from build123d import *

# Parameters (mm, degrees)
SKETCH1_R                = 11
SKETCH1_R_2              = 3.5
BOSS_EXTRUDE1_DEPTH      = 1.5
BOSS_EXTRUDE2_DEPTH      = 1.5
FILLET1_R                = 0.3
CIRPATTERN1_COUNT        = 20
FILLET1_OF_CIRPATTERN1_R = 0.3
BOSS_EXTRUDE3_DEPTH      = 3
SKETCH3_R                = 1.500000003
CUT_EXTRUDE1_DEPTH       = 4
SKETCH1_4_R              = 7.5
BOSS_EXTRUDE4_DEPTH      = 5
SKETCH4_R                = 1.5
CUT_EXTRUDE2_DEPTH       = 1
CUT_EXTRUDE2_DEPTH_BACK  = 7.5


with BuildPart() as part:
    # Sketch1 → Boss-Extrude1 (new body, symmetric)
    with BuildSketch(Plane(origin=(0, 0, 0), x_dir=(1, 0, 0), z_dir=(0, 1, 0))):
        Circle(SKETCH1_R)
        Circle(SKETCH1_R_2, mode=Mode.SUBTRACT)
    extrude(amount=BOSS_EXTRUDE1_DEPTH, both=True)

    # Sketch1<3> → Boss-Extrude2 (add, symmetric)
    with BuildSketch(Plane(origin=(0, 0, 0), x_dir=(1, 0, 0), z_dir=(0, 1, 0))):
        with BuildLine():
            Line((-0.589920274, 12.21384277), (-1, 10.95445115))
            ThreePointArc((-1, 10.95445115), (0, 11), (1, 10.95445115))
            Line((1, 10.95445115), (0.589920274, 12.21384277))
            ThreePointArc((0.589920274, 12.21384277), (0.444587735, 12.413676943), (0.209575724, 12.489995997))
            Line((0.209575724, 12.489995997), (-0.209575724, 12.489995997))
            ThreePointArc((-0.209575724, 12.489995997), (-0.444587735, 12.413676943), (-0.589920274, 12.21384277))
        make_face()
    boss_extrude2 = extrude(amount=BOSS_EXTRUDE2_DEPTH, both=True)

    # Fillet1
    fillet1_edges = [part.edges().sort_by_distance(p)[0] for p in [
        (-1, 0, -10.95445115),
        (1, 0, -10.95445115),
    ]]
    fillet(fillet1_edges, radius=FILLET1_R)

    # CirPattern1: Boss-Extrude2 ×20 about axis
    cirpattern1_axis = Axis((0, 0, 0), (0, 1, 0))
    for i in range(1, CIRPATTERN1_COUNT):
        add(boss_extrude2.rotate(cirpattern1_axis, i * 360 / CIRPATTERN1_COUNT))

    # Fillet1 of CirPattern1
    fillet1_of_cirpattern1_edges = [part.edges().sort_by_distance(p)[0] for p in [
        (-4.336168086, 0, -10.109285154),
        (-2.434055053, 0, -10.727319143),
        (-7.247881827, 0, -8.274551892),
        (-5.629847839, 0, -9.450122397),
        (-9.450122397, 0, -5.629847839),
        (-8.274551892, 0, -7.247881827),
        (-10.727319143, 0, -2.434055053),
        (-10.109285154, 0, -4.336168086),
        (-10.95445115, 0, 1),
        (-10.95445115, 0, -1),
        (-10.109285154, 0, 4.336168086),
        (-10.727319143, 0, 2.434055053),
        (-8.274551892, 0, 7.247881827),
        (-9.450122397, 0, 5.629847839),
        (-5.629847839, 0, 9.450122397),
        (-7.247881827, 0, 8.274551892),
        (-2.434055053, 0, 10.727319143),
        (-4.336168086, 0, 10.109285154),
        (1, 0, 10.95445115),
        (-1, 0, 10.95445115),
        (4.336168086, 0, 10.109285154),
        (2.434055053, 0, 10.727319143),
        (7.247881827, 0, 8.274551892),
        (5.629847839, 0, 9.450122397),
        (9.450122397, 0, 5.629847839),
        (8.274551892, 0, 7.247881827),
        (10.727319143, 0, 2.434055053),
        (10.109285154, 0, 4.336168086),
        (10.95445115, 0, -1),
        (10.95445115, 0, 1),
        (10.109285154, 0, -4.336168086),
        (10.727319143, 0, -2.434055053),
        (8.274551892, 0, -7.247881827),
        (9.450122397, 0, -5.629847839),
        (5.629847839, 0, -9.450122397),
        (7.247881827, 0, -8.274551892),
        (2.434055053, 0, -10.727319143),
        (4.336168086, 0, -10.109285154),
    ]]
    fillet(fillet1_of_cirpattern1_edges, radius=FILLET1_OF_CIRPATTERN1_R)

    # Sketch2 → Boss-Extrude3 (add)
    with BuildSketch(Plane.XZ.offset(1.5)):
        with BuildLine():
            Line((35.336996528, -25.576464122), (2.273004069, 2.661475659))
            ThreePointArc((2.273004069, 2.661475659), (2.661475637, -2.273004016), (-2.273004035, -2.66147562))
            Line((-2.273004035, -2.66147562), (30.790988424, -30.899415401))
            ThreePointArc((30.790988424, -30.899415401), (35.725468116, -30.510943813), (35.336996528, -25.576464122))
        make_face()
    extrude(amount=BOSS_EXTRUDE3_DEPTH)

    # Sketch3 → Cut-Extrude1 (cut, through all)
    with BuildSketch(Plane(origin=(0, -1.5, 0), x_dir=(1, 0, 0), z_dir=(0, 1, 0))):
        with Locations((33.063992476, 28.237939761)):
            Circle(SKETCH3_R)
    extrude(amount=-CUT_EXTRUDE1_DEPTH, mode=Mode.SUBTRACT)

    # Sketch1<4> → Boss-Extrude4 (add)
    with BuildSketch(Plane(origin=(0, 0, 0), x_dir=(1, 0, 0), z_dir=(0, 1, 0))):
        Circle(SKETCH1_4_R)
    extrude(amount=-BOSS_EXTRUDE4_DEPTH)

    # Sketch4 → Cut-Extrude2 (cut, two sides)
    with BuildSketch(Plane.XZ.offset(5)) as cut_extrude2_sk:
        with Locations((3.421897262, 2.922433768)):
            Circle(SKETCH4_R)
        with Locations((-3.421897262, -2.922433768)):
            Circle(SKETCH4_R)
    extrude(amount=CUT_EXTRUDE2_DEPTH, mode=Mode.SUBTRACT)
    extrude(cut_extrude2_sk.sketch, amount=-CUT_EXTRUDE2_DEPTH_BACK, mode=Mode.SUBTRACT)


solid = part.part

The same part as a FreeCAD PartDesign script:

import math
import FreeCAD as App
import Part
import Sketcher

V = App.Vector
Q = App.Units.Quantity


def edges_at(feature, points):
    """Names of the edges that pass closest to the given points."""
    edges = feature.Shape.Edges
    near = lambda p: min(range(len(edges)), key=lambda i: edges[i].distToShape(Part.Vertex(*p))[0])
    return sorted({f"Edge{near(p) + 1}" for p in points})

doc = App.newDocument("Part")
body = doc.addObject("PartDesign::Body", "Body")

# Sketch on XZ plane
sketch1 = body.newObject("Sketcher::SketchObject", "Sketch")
sketch1.AttachmentSupport = (doc.getObject("XZ_Plane"), [""])
sketch1.MapMode = "FlatFace"
sketch1.addGeometry([
    Part.Circle(V(0, 0, 0), V(0, 0, 1), 11),
    Part.Circle(V(0, 0, 0), V(0, 0, 1), 3.5),
], False)
sketch1.addConstraint([
    Sketcher.Constraint("Coincident", 0, 3, -1, 1),
    Sketcher.Constraint("Coincident", 1, 3, -1, 1),
    Sketcher.Constraint("Diameter", 0, Q("22 mm")),
    Sketcher.Constraint("Diameter", 1, Q("7 mm")),
])
pad1 = body.newObject("PartDesign::Pad", "Pad")
pad1.Profile = sketch1
pad1.Length = 3
pad1.Midplane = True

# Sketch on XZ plane
sketch2 = body.newObject("Sketcher::SketchObject", "Sketch001")
sketch2.AttachmentSupport = (doc.getObject("XZ_Plane"), [""])
sketch2.MapMode = "FlatFace"
sketch2.addGeometry([
    Part.LineSegment(V(-0.59, -12.21, 0), V(-1, -10.95, 0)),  # 0
    Part.ArcOfCircle(Part.Circle(V(0, 0, 0), V(0, 0, 1), 11), math.radians(-95.22), math.radians(-84.78)),  # 1
    Part.LineSegment(V(1, -10.95, 0), V(0.59, -12.21, 0)),  # 2
    Part.ArcOfCircle(Part.Circle(V(0.21, -12.09, 0), V(0, 0, 1), 0.4), math.radians(-90), math.radians(-18)),  # 3
    Part.LineSegment(V(0.21, -12.49, 0), V(-0.21, -12.49, 0)),  # 4
    Part.ArcOfCircle(Part.Circle(V(-0.21, -12.09, 0), V(0, 0, 1), 0.4), math.radians(-162), math.radians(-90)),  # 5
], False)
sketch2.addConstraint([
    Sketcher.Constraint("Coincident", 0, 2, 1, 1),
    Sketcher.Constraint("Coincident", 1, 2, 2, 1),
    Sketcher.Constraint("Tangent", 2, 2, 3, 2),
    Sketcher.Constraint("Tangent", 3, 1, 4, 1),
    Sketcher.Constraint("Tangent", 4, 2, 5, 2),
    Sketcher.Constraint("Tangent", 5, 1, 0, 1),
    Sketcher.Constraint("Horizontal", 4),
    Sketcher.Constraint("Coincident", 1, 3, -1, 1),
    Sketcher.Constraint("Equal", 3, 5),
    Sketcher.Constraint("Symmetric", 2, 2, 5, 1, -2),
    Sketcher.Constraint("Radius", 1, Q("11 mm")),
    Sketcher.Constraint("Radius", 3, Q("0.4 mm")),
    Sketcher.Constraint("DistanceX", 0, 2, -1, 1, Q("1 mm")),
    Sketcher.Constraint("DistanceX", 4, 2, 4, 1, Q("0.419151 mm")),
    Sketcher.Constraint("DistanceX", -1, 1, 2, 2, Q("0.58992 mm")),
])
pad2 = body.newObject("PartDesign::Pad", "Pad001")
pad2.Profile = sketch2
pad2.Length = 3
pad2.Midplane = True
doc.recompute()

fillet = body.newObject("PartDesign::Fillet", "Fillet")
fillet.Base = (pad2, edges_at(pad2, [(-1, 0, -10.954), (1, 0, -10.954)]))
fillet.Radius = 0.3
doc.recompute()

polarpattern = body.newObject("PartDesign::PolarPattern", "PolarPattern")
polarpattern.Originals = [pad2]
polarpattern.Axis = (doc.getObject("Y_Axis"), [""])
polarpattern.Angle = 360
polarpattern.Occurrences = 20
body.Tip = polarpattern
doc.recompute()

fillet2 = body.newObject("PartDesign::Fillet", "Fillet001")
fillet2.Base = (polarpattern, edges_at(polarpattern, [
    (-4.336, 0, -10.109),
    (-2.434, 0, -10.727),
    (-7.248, 0, -8.275),
    (-5.63, 0, -9.45),
    (-9.45, 0, -5.63),
    (-8.275, 0, -7.248),
    (-10.727, 0, -2.434),
    (-10.109, 0, -4.336),
    (-10.954, 0, 1),
    (-10.954, 0, -1),
    (-10.109, 0, 4.336),
    (-10.727, 0, 2.434),
    (-8.275, 0, 7.248),
    (-9.45, 0, 5.63),
    (-5.63, 0, 9.45),
    (-7.248, 0, 8.275),
    (-2.434, 0, 10.727),
    (-4.336, 0, 10.109),
    (1, 0, 10.954),
    (-1, 0, 10.954),
    (4.336, 0, 10.109),
    (2.434, 0, 10.727),
    (7.248, 0, 8.275),
    (5.63, 0, 9.45),
    (9.45, 0, 5.63),
    (8.275, 0, 7.248),
    (10.727, 0, 2.434),
    (10.109, 0, 4.336),
    (10.954, 0, -1),
    (10.954, 0, 1),
    (10.109, 0, -4.336),
    (10.727, 0, -2.434),
    (8.275, 0, -7.248),
    (9.45, 0, -5.63),
    (5.63, 0, -9.45),
    (7.248, 0, -8.275),
    (2.434, 0, -10.727),
    (4.336, 0, -10.109),
]))
fillet2.Radius = 0.3

# Sketch on XZ plane
sketch3 = body.newObject("Sketcher::SketchObject", "Sketch002")
sketch3.AttachmentSupport = (doc.getObject("XZ_Plane"), [""])
sketch3.MapMode = "FlatFace"
sketch3.AttachmentOffset = App.Placement(V(0, 0, 1.5), App.Rotation())
sketch3.addGeometry([
    Part.LineSegment(V(35.3, -25.6, 0), V(2.3, 2.7, 0)),
    Part.ArcOfCircle(Part.Circle(V(0, 0, 0), V(0, 0, 1), 3.5), math.radians(-130), math.radians(50)),
    Part.LineSegment(V(-2.3, -2.7, 0), V(30.8, -30.9, 0)),
    Part.ArcOfCircle(Part.Circle(V(33.1, -28.2, 0), V(0, 0, 1), 3.5), math.radians(-130), math.radians(50)),
], False)
sketch3.addConstraint([
    Sketcher.Constraint("Tangent", 0, 2, 1, 2),
    Sketcher.Constraint("Tangent", 1, 1, 2, 1),
    Sketcher.Constraint("Tangent", 2, 2, 3, 1),
    Sketcher.Constraint("Tangent", 3, 2, 0, 1),
    Sketcher.Constraint("Coincident", 1, 3, -1, 1),
    Sketcher.Constraint("Equal", 1, 3),
    Sketcher.Constraint("Radius", 1, Q("3.5 mm")),
    Sketcher.Constraint("DistanceX", 1, 1, 3, 2, Q("37.610001 mm")),
    Sketcher.Constraint("DistanceY", 3, 3, -1, 1, Q("28.23794 mm")),
])
pad3 = body.newObject("PartDesign::Pad", "Pad002")
pad3.Profile = sketch3
pad3.Length = 3

# Sketch on XZ plane
sketch4 = body.newObject("Sketcher::SketchObject", "Sketch003")
sketch4.AttachmentSupport = (doc.getObject("XZ_Plane"), [""])
sketch4.MapMode = "FlatFace"
sketch4.AttachmentOffset = App.Placement(V(0, 0, 1.5), App.Rotation())
sketch4.addGeometry(Part.Circle(V(33.1, -28.2, 0), V(0, 0, 1), 1.5), False)
sketch4.addConstraint([
    Sketcher.Constraint("Diameter", 0, Q("3 mm")),
    Sketcher.Constraint("DistanceY", 0, 3, -1, 1, Q("28.23794 mm")),
    Sketcher.Constraint("DistanceX", -1, 1, 0, 3, Q("33.063992 mm")),
])
pocket1 = body.newObject("PartDesign::Pocket", "Pocket")
pocket1.Profile = sketch4
pocket1.Type = "ThroughAll"
pocket1.Reversed = True

# Sketch on XZ plane
sketch5 = body.newObject("Sketcher::SketchObject", "Sketch004")
sketch5.AttachmentSupport = (doc.getObject("XZ_Plane"), [""])
sketch5.MapMode = "FlatFace"
sketch5.addGeometry(Part.Circle(V(0, 0, 0), V(0, 0, 1), 8), False)
sketch5.addConstraint([
    Sketcher.Constraint("Coincident", 0, 3, -1, 1),
    Sketcher.Constraint("Diameter", 0, Q("15 mm")),
])
pad4 = body.newObject("PartDesign::Pad", "Pad003")
pad4.Profile = sketch5
pad4.Length = 5

# Sketch on XZ plane
sketch6 = body.newObject("Sketcher::SketchObject", "Sketch005")
sketch6.AttachmentSupport = (doc.getObject("XZ_Plane"), [""])
sketch6.MapMode = "FlatFace"
sketch6.AttachmentOffset = App.Placement(V(0, 0, 5), App.Rotation())
sketch6.addGeometry([
    Part.Circle(V(3.4, 2.9, 0), V(0, 0, 1), 1.5),
    Part.Circle(V(-3.4, -2.9, 0), V(0, 0, 1), 1.5),
], False)
sketch6.addConstraint([
    Sketcher.Constraint("Equal", 0, 1),
    Sketcher.Constraint("Symmetric", 0, 3, 1, 3, -1, 1),
    Sketcher.Constraint("Diameter", 0, Q("3 mm")),
    Sketcher.Constraint("DistanceX", -1, 1, 0, 3, Q("3.421897 mm")),
    Sketcher.Constraint("DistanceY", -1, 1, 0, 3, Q("2.922434 mm")),
])
pocket2 = body.newObject("PartDesign::Pocket", "Pocket001")
pocket2.Profile = sketch6
pocket2.Type = "ThroughAll"
pocket2.Midplane = True

doc.recompute()
